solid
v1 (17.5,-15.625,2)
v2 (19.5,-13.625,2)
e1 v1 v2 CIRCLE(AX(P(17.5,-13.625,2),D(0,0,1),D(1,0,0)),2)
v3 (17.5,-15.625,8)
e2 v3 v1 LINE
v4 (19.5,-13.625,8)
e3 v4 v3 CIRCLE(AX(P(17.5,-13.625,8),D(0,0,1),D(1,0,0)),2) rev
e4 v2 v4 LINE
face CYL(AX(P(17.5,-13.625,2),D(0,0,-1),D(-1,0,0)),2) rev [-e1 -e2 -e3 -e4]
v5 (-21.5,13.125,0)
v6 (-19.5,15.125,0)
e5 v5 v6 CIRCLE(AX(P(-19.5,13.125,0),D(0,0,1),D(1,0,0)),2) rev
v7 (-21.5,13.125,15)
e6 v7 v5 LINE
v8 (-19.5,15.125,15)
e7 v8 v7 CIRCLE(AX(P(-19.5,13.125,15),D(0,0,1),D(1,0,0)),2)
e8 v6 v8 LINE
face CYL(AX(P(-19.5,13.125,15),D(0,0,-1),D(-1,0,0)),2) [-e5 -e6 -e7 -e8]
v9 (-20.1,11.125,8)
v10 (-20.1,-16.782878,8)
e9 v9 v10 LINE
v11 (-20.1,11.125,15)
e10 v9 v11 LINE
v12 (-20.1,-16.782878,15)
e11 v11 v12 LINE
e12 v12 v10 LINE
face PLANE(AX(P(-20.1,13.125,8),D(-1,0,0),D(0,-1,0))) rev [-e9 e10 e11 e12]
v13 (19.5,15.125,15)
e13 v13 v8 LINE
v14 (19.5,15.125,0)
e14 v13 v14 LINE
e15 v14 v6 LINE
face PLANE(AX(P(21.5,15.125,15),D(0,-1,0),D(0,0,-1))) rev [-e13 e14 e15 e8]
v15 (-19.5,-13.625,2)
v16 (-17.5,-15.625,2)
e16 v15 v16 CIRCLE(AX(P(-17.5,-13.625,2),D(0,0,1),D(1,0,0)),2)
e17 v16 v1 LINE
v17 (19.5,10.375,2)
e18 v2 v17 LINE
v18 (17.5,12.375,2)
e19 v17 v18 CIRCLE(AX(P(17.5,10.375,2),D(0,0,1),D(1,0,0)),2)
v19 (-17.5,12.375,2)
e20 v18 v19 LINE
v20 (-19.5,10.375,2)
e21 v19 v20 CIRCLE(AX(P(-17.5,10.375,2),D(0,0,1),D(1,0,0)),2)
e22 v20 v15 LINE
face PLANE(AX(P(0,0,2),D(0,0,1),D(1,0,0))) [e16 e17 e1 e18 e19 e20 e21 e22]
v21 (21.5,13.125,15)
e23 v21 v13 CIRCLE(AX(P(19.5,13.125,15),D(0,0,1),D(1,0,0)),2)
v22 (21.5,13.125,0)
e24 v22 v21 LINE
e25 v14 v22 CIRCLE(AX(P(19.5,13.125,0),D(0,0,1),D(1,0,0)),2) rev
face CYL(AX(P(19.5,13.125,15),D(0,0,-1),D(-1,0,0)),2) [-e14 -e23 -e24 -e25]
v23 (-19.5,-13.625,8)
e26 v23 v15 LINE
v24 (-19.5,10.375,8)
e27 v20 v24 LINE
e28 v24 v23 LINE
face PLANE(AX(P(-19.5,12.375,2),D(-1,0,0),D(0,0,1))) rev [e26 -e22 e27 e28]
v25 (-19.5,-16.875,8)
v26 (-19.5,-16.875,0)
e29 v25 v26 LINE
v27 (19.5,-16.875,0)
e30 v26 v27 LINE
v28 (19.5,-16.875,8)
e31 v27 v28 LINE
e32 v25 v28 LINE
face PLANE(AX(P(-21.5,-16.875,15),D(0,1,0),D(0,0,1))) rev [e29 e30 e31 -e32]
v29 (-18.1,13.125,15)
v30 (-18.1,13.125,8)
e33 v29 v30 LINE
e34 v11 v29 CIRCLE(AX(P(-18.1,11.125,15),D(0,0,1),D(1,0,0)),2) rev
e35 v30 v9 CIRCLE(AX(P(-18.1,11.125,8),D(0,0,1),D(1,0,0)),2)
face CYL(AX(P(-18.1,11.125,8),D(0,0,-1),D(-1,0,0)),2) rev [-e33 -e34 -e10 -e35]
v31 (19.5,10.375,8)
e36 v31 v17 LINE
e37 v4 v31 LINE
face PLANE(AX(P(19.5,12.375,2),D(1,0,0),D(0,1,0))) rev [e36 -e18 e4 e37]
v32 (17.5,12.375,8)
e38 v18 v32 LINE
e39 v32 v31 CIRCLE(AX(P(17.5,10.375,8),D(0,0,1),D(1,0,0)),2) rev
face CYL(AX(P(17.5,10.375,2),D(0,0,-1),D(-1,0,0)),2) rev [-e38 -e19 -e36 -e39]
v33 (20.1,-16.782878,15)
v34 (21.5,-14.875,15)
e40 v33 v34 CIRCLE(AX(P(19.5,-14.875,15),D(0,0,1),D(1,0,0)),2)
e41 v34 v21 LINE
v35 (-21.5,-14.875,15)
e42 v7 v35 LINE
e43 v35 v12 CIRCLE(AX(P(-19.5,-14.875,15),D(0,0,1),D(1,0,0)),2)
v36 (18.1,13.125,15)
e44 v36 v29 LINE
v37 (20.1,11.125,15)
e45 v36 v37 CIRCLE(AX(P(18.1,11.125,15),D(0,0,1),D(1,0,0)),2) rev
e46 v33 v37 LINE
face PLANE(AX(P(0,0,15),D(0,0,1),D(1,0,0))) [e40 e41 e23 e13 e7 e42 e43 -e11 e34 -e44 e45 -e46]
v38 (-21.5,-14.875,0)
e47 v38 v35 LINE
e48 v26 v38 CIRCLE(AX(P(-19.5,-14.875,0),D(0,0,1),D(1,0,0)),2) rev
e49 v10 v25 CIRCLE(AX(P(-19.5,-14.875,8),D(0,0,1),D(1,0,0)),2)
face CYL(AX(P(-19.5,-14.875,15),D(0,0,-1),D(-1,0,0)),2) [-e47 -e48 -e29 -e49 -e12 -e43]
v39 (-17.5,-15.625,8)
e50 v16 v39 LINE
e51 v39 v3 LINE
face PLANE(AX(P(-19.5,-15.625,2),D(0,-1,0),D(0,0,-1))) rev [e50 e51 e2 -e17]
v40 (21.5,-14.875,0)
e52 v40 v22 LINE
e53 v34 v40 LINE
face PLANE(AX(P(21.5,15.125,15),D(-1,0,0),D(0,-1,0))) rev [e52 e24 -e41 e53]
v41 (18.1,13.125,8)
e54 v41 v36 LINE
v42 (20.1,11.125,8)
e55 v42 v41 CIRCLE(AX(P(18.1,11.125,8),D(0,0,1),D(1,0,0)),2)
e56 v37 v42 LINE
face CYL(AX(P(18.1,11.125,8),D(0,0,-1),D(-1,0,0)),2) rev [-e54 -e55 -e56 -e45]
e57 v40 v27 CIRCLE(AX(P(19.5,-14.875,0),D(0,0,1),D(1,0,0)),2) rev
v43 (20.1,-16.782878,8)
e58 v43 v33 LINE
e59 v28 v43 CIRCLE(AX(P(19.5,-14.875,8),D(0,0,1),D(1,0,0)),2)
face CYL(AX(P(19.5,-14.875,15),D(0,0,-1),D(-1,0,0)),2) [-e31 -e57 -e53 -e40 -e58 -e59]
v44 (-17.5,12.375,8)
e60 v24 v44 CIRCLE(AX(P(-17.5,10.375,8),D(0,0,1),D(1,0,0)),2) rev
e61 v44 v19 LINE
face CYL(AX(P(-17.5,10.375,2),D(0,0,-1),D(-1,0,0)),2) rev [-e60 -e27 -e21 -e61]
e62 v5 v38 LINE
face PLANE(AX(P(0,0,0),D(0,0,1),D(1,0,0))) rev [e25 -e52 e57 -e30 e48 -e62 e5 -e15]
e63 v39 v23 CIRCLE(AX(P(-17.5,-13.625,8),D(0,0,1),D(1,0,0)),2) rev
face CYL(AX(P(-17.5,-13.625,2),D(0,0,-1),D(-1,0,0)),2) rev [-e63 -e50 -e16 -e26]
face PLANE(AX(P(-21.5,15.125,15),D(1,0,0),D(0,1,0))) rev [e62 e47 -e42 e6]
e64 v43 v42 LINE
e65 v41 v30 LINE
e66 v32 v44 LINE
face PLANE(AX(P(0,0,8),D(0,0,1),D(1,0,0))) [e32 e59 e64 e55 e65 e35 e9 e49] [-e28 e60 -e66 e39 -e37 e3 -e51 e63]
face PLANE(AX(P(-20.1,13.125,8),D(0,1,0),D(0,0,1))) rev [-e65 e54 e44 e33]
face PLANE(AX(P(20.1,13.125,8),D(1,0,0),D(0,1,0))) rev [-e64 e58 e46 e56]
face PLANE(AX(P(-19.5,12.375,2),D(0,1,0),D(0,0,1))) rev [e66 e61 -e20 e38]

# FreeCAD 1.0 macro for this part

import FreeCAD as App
import Part
import Sketcher

V = App.Vector
Q = App.Units.Quantity


def edges_at(feature, points):
    """Names of the edges that pass closest to the given points."""
    edges = feature.Shape.Edges
    near = lambda p: min(range(len(edges)), key=lambda i: edges[i].distToShape(Part.Vertex(*p))[0])
    return sorted({f"Edge{near(p) + 1}" for p in points})


def add_polygon(sketch, points):
    """Adds a closed chain of lines whose ends are joined by coincident constraints."""
    first, n = sketch.GeometryCount, len(points)
    for a, b in zip(points, points[1:] + points[:1]):
        sketch.addGeometry(Part.LineSegment(App.Vector(*a, 0), App.Vector(*b, 0)), False)
    for i in range(n):
        sketch.addConstraint(Sketcher.Constraint("Coincident", first + i, 2, first + (i + 1) % n, 1))

doc = App.newDocument("Part")
body = doc.addObject("PartDesign::Body", "Body")

# Sketch on XY plane
sketch1 = body.newObject("Sketcher::SketchObject", "Sketch")
sketch1.AttachmentSupport = (doc.getObject("XY_Plane"), [""])
sketch1.MapMode = "FlatFace"
add_polygon(sketch1, [(-22, 15), (-22, -17), (22, -17), (22, 15)])  # lines 0-3
sketch1.addConstraint([
    Sketcher.Constraint("Vertical", 0),
    Sketcher.Constraint("Horizontal", 1),
    Sketcher.Constraint("Vertical", 2),
    Sketcher.Constraint("Horizontal", 3),
    Sketcher.Constraint("DistanceX", 1, 1, 1, 2, Q("43 mm")),
    Sketcher.Constraint("DistanceY", 0, 2, 0, 1, Q("32 mm")),
    Sketcher.Constraint("DistanceX", 0, 2, -1, 1, Q("21.5 mm")),
    Sketcher.Constraint("DistanceY", 0, 2, -1, 1, Q("16.875 mm")),
])
pad1 = body.newObject("PartDesign::Pad", "Pad")
pad1.Profile = sketch1
pad1.Length = 15

# Sketch on XY plane
sketch2 = body.newObject("Sketcher::SketchObject", "Sketch001")
sketch2.AttachmentSupport = (doc.getObject("XY_Plane"), [""])
sketch2.MapMode = "FlatFace"
sketch2.AttachmentOffset = App.Placement(V(0, 0, 15), App.Rotation())
add_polygon(sketch2, [(-20, 13), (-20, -17), (20, -17), (20, 13)])  # lines 0-3
sketch2.addConstraint([
    Sketcher.Constraint("Vertical", 0),
    Sketcher.Constraint("Horizontal", 1),
    Sketcher.Constraint("Vertical", 2),
    Sketcher.Constraint("Horizontal", 3),
    Sketcher.Constraint("DistanceY", 0, 2, 0, 1, Q("30 mm")),
    Sketcher.Constraint("DistanceX", 1, 1, 1, 2, Q("40.2 mm")),
    Sketcher.Constraint("DistanceX", 0, 2, -1, 1, Q("20.1 mm")),
    Sketcher.Constraint("DistanceY", 0, 2, -1, 1, Q("16.875 mm")),
])
pocket1 = body.newObject("PartDesign::Pocket", "Pocket")
pocket1.Profile = sketch2
pocket1.Length = 7

# Sketch on XY plane
sketch3 = body.newObject("Sketcher::SketchObject", "Sketch002")
sketch3.AttachmentSupport = (doc.getObject("XY_Plane"), [""])
sketch3.MapMode = "FlatFace"
sketch3.AttachmentOffset = App.Placement(V(0, 0, 8), App.Rotation())
add_polygon(sketch3, [(-20, 12), (-20, -16), (20, -16), (20, 12)])  # lines 0-3
sketch3.addConstraint([
    Sketcher.Constraint("Vertical", 0),
    Sketcher.Constraint("Horizontal", 1),
    Sketcher.Constraint("Vertical", 2),
    Sketcher.Constraint("Horizontal", 3),
    Sketcher.Constraint("DistanceX", 1, 1, 1, 2, Q("39 mm")),
    Sketcher.Constraint("DistanceY", 0, 2, 0, 1, Q("28 mm")),
    Sketcher.Constraint("DistanceX", 0, 2, -1, 1, Q("19.5 mm")),
    Sketcher.Constraint("DistanceY", 0, 2, -1, 1, Q("15.625 mm")),
])
pocket2 = body.newObject("PartDesign::Pocket", "Pocket001")
pocket2.Profile = sketch3
pocket2.Length = 6
doc.recompute()

fillet = body.newObject("PartDesign::Fillet", "Fillet")
fillet.Base = (pocket2, edges_at(pocket2, [
    (20.1, 13.125, 11.5),
    (-20.1, 13.125, 11.5),
    (19.5, 12.375, 5),
    (19.5, -15.625, 5),
    (-19.5, -15.625, 5),
    (-19.5, 12.375, 5),
]))
fillet.Radius = 2
doc.recompute()

fillet2 = body.newObject("PartDesign::Fillet", "Fillet001")
fillet2.Base = (fillet, edges_at(fillet, [
    (-21.5, -16.875, 7.5),
    (21.5, -16.875, 7.5),
    (21.5, 15.125, 7.5),
    (-21.5, 15.125, 7.5),
]))
fillet2.Radius = 2

doc.recompute()
